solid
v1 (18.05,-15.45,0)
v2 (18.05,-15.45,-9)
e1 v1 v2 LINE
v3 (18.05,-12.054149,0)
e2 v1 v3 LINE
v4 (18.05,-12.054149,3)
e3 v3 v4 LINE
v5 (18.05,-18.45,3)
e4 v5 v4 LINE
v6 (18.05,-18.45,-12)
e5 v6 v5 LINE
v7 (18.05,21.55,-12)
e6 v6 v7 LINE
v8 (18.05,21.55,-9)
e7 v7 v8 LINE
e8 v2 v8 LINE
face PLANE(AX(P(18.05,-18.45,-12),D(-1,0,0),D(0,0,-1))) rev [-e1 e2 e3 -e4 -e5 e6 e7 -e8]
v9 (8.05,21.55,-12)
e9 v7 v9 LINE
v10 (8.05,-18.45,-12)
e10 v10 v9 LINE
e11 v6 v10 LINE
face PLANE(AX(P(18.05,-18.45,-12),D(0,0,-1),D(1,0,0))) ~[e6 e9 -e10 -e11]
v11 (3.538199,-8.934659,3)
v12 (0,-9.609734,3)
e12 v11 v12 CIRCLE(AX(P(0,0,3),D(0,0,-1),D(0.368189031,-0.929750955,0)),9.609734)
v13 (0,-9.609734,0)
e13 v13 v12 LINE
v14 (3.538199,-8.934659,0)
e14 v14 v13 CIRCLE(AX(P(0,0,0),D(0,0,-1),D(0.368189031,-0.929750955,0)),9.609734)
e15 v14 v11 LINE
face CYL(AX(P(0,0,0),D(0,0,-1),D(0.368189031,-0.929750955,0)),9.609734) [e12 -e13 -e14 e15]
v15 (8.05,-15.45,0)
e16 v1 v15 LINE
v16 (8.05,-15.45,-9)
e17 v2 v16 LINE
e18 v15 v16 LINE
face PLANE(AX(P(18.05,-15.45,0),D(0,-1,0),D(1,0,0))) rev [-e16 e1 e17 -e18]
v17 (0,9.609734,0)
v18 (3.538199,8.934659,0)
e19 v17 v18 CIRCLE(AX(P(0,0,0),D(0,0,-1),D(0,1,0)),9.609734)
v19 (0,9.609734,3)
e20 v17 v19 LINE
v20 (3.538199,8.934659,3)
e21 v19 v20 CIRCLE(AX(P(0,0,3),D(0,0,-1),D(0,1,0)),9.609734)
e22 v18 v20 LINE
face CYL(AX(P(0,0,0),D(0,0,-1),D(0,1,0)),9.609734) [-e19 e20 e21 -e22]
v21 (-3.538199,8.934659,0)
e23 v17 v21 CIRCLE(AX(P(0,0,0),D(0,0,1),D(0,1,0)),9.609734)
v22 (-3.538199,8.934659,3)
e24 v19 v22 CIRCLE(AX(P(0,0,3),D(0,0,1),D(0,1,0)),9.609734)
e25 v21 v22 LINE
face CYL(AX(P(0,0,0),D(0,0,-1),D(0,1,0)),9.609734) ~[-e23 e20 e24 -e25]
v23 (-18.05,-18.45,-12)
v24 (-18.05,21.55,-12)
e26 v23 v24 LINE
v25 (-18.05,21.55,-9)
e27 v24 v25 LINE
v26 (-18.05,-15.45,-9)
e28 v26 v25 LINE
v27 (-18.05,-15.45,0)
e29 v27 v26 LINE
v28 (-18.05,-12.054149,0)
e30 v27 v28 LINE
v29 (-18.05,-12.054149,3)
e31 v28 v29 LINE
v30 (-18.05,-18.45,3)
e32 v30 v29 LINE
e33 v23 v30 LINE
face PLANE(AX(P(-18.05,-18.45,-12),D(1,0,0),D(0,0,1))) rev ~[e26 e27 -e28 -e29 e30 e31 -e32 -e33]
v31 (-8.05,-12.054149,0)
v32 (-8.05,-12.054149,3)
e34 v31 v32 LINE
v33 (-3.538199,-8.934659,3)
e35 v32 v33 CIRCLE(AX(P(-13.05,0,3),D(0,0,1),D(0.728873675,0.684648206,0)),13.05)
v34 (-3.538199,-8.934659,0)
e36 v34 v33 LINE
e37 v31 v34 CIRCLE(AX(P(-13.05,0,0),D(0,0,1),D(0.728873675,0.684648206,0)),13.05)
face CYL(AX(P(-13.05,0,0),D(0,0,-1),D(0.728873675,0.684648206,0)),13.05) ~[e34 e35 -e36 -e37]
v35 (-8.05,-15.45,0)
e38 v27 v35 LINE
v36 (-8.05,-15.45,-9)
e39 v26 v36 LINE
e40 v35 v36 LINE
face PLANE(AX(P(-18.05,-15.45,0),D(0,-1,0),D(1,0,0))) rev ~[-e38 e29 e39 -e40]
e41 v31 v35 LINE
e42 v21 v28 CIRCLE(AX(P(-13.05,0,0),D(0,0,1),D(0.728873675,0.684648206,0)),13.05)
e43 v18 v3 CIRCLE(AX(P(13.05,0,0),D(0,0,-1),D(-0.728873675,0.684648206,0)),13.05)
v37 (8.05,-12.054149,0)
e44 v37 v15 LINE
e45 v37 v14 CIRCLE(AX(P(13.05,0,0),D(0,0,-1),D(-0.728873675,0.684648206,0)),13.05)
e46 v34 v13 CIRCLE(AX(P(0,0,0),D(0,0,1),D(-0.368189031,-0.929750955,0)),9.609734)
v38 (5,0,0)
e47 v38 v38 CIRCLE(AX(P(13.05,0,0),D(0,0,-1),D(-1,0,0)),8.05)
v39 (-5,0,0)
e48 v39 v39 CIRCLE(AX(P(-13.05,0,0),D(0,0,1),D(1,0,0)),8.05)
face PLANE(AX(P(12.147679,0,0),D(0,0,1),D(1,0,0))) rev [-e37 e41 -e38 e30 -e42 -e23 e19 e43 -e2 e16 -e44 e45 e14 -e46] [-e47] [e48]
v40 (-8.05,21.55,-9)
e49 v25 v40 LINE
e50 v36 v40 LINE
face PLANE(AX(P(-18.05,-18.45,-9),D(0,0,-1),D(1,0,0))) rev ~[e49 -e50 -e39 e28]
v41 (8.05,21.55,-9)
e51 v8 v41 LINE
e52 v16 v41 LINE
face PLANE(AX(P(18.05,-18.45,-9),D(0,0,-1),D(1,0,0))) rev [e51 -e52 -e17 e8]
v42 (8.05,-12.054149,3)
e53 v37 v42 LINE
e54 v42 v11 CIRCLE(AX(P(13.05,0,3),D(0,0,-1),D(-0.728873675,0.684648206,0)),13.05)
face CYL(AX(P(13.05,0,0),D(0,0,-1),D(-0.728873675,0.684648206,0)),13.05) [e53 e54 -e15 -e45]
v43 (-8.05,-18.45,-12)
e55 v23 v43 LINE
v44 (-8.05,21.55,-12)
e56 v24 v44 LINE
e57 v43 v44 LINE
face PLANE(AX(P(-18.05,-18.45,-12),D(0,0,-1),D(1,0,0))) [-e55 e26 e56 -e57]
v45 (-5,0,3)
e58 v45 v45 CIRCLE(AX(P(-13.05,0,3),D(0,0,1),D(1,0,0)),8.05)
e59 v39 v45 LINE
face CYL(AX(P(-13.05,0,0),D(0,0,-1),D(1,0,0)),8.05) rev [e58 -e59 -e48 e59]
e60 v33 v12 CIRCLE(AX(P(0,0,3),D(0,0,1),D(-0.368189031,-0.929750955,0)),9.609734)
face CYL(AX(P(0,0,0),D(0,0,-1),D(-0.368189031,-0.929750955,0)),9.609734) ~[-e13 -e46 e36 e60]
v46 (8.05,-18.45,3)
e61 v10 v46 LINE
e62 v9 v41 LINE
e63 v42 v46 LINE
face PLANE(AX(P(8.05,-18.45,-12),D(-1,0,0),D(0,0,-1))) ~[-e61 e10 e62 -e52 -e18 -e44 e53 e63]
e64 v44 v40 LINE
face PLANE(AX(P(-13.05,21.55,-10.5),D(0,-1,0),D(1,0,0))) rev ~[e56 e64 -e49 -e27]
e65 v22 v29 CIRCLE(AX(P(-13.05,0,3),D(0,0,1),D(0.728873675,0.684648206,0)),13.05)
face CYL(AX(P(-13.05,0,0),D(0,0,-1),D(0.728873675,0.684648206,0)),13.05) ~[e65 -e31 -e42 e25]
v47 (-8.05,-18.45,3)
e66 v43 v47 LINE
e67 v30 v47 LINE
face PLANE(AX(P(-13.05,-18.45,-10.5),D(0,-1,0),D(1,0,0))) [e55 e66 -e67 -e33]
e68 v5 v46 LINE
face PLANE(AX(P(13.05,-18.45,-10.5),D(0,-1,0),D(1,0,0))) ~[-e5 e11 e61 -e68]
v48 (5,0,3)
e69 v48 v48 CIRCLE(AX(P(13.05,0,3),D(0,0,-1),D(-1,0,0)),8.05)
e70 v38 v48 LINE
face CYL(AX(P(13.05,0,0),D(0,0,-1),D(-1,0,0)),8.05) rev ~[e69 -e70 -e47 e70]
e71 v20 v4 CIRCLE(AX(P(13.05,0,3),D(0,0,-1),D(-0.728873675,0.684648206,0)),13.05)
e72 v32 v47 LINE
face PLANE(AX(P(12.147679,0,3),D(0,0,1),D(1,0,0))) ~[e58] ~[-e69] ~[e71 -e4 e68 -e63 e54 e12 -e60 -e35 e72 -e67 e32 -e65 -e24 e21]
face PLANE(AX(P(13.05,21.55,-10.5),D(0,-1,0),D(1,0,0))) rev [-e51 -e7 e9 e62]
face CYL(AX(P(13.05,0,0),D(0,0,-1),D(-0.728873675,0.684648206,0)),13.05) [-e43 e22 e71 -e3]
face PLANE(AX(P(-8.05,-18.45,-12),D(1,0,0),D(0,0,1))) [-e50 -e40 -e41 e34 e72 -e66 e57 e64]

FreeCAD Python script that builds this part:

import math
import FreeCAD as App
import Part
import Sketcher

V = App.Vector
Q = App.Units.Quantity


def add_polygon(sketch, points):
    """Adds a closed chain of lines whose ends are joined by coincident constraints."""
    first, n = sketch.GeometryCount, len(points)
    for a, b in zip(points, points[1:] + points[:1]):
        sketch.addGeometry(Part.LineSegment(App.Vector(*a, 0), App.Vector(*b, 0)), False)
    for i in range(n):
        sketch.addConstraint(Sketcher.Constraint("Coincident", first + i, 2, first + (i + 1) % n, 1))

doc = App.newDocument("Part")
body = doc.addObject("PartDesign::Body", "Body")

# Sketch on XY plane
sketch1 = body.newObject("Sketcher::SketchObject", "Sketch")
sketch1.AttachmentSupport = (doc.getObject("XY_Plane"), [""])
sketch1.MapMode = "FlatFace"
sketch1.addGeometry(Part.ArcOfCircle(Part.Circle(V(-13.1, 0, 0), V(0, 0, 1), 13.1), math.radians(43), math.radians(317)), False)
sketch1.addGeometry(Part.ArcOfCircle(Part.Circle(V(0, 0, 0), V(0, 0, 1), 9.6), math.radians(-112), math.radians(-90)), False)
sketch1.addGeometry(Part.LineSegment(V(0, -9.6, 0), V(0, 9.6, 0)), False)
sketch1.addGeometry(Part.ArcOfCircle(Part.Circle(V(0, 0, 0), V(0, 0, 1), 9.6), math.radians(90), math.radians(112)), False)
sketch1.addGeometry(Part.Circle(V(-13.1, 0, 0), V(0, 0, 1), 8.1), False)
sketch1.addConstraint(Sketcher.Constraint("Coincident", 0, 2, 1, 1))
sketch1.addConstraint(Sketcher.Constraint("Coincident", 1, 2, 2, 1))
sketch1.addConstraint(Sketcher.Constraint("Coincident", 2, 2, 3, 1))
sketch1.addConstraint(Sketcher.Constraint("Coincident", 3, 2, 0, 1))
sketch1.addConstraint(Sketcher.Constraint("Vertical", 2))
sketch1.addConstraint(Sketcher.Constraint("Coincident", 1, 3, -1, 1))
sketch1.addConstraint(Sketcher.Constraint("Coincident", 3, 3, -1, 1))
sketch1.addConstraint(Sketcher.Constraint("Coincident", 4, 3, 0, 3))
sketch1.addConstraint(Sketcher.Constraint("Equal", 1, 3))
sketch1.addConstraint(Sketcher.Constraint("PointOnObject", 0, 3, -1))
sketch1.addConstraint(Sketcher.Constraint("PointOnObject", 1, 2, -2))
sketch1.addConstraint(Sketcher.Constraint("Diameter", 4, Q("16.1 mm")))
sketch1.addConstraint(Sketcher.Constraint("Radius", 0, Q("13.05 mm")))
sketch1.addConstraint(Sketcher.Constraint("DistanceX", 0, 3, -1, 1, Q("13.05 mm")))
sketch1.addConstraint(Sketcher.Constraint("Radius", 1, Q("9.609734 mm")))
pad1 = body.newObject("PartDesign::Pad", "Pad")
pad1.Profile = sketch1
pad1.Length = 3

# Sketch on XY plane
sketch2 = body.newObject("Sketcher::SketchObject", "Sketch001")
sketch2.AttachmentSupport = (doc.getObject("XY_Plane"), [""])
sketch2.MapMode = "FlatFace"
sketch2.addGeometry(Part.ArcOfCircle(Part.Circle(V(-13, 0, 0), V(0, 0, 1), 13), math.radians(-113), math.radians(-67)), False)
sketch2.addGeometry(Part.LineSegment(V(-8, -12, 0), V(-8, -18, 0)), False)
sketch2.addGeometry(Part.LineSegment(V(-8, -18, 0), V(-18, -18, 0)), False)
sketch2.addGeometry(Part.LineSegment(V(-18, -18, 0), V(-18, -12, 0)), False)
sketch2.addConstraint(Sketcher.Constraint("Coincident", 0, 2, 1, 1))
sketch2.addConstraint(Sketcher.Constraint("Coincident", 1, 2, 2, 1))
sketch2.addConstraint(Sketcher.Constraint("Coincident", 2, 2, 3, 1))
sketch2.addConstraint(Sketcher.Constraint("Coincident", 3, 2, 0, 1))
sketch2.addConstraint(Sketcher.Constraint("Vertical", 1))
sketch2.addConstraint(Sketcher.Constraint("Horizontal", 2))
sketch2.addConstraint(Sketcher.Constraint("Vertical", 3))
sketch2.addConstraint(Sketcher.Constraint("PointOnObject", 0, 3, -1))
sketch2.addConstraint(Sketcher.Constraint("Horizontal", 0, 2, 3, 2))
sketch2.addConstraint(Sketcher.Constraint("DistanceX", 2, 2, 2, 1, Q("10 mm")))
sketch2.addConstraint(Sketcher.Constraint("Radius", 0, Q("13.05 mm")))
sketch2.addConstraint(Sketcher.Constraint("DistanceX", 0, 3, -1, 1, Q("13.05 mm")))
sketch2.addConstraint(Sketcher.Constraint("DistanceY", 1, 2, -1, 1, Q("18.45 mm")))
pad2 = body.newObject("PartDesign::Pad", "Pad001")
pad2.Profile = sketch2
pad2.Length = 3

# Sketch on XY plane
sketch3 = body.newObject("Sketcher::SketchObject", "Sketch002")
sketch3.AttachmentSupport = (doc.getObject("XY_Plane"), [""])
sketch3.MapMode = "FlatFace"
add_polygon(sketch3, [(-18.1, -18.4), (-18.1, -15.4), (-8.1, -15.4), (-8.1, -18.4)])  # lines 0-3
sketch3.addConstraint(Sketcher.Constraint("Vertical", 0))
sketch3.addConstraint(Sketcher.Constraint("Horizontal", 1))
sketch3.addConstraint(Sketcher.Constraint("Vertical", 2))
sketch3.addConstraint(Sketcher.Constraint("Horizontal", 3))
sketch3.addConstraint(Sketcher.Constraint("DistanceX", 1, 1, 1, 2, Q("10 mm")))
sketch3.addConstraint(Sketcher.Constraint("DistanceY", 0, 1, 0, 2, Q("3 mm")))
sketch3.addConstraint(Sketcher.Constraint("DistanceX", 0, 2, -1, 1, Q("18.05 mm")))
sketch3.addConstraint(Sketcher.Constraint("DistanceY", 0, 2, -1, 1, Q("15.45 mm")))
pad3 = body.newObject("PartDesign::Pad", "Pad002")
pad3.Profile = sketch3
pad3.Length = 9
pad3.Reversed = True

# Sketch on XZ plane
sketch4 = body.newObject("Sketcher::SketchObject", "Sketch003")
sketch4.AttachmentSupport = (doc.getObject("XZ_Plane"), [""])
sketch4.MapMode = "FlatFace"
sketch4.AttachmentOffset = App.Placement(V(0, 0, 18.45), App.Rotation())
add_polygon(sketch4, [(-18.1, -9), (-18.1, -12), (-8.1, -12), (-8.1, -9)])  # lines 0-3
sketch4.addConstraint(Sketcher.Constraint("Vertical", 0))
sketch4.addConstraint(Sketcher.Constraint("Horizontal", 1))
sketch4.addConstraint(Sketcher.Constraint("Vertical", 2))
sketch4.addConstraint(Sketcher.Constraint("Horizontal", 3))
sketch4.addConstraint(Sketcher.Constraint("DistanceX", 1, 1, 1, 2, Q("10 mm")))
sketch4.addConstraint(Sketcher.Constraint("DistanceY", 0, 2, 0, 1, Q("3 mm")))
sketch4.addConstraint(Sketcher.Constraint("DistanceY", 0, 2, -1, 1, Q("12 mm")))
sketch4.addConstraint(Sketcher.Constraint("DistanceX", 0, 2, -1, 1, Q("18.05 mm")))
pad4 = body.newObject("PartDesign::Pad", "Pad003")
pad4.Profile = sketch4
pad4.Length = 40
pad4.Reversed = True
body2 = doc.addObject("PartDesign::Body", "Body001")
doc.recompute()

body2.BaseFeature = body
doc.recompute()

mirroring = doc.addObject("Part::Mirroring", "Mirroring")
mirroring.Source = body
mirroring.Base = V(0, 0, 0)
mirroring.Normal = V(1, 0, 0)
body3 = doc.addObject("PartDesign::Body", "Body002")
body3.BaseFeature = mirroring
boolean = body2.newObject("PartDesign::Boolean", "Boolean")
boolean.Type = "Fuse"
boolean.addObjects([body3])
doc.recompute()
mirroring.Visibility = False

doc.recompute()
